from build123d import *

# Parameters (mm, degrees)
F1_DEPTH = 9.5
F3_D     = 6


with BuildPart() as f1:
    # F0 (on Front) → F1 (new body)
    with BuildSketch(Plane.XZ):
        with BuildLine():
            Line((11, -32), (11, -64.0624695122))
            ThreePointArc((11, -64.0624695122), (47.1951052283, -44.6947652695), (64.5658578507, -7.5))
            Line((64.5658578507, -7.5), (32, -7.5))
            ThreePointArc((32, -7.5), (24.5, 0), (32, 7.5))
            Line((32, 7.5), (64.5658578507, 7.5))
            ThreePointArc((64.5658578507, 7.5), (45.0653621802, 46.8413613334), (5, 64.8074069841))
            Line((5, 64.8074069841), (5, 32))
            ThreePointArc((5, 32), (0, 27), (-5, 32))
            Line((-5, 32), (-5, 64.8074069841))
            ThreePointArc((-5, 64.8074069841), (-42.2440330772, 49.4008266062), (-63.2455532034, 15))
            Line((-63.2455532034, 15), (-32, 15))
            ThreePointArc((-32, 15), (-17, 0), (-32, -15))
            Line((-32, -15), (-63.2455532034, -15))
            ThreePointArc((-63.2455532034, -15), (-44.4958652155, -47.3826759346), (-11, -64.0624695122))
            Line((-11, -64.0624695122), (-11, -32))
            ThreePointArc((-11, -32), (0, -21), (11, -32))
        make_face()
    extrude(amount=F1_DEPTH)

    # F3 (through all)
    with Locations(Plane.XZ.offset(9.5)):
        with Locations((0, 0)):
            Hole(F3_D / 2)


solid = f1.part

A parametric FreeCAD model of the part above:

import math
import FreeCAD as App
import Part
import Sketcher
from FreeCAD import Vector

doc = App.newDocument("Part")
params = doc.addObject("Spreadsheet::Sheet", "Params")
for row, (alias, value) in enumerate([
    ("sketch1_radius", "65 mm"),
    ("sketch1_radius2", "5 mm"),
    ("sketch1_radius3", "15 mm"),
    ("sketch1_radius4", "11 mm"),
    ("sketch1_radius5", "7.5 mm"),
    ("pad1_length", "9.5 mm"),
    ("sketch2_diameter", "6 mm"),
    ("hole_diameter", "6 mm"),
], start=1):
    params.set(f"A{row}", alias)
    params.set(f"B{row}", "=" + value)
    params.setAlias(f"B{row}", alias)

body = doc.addObject("PartDesign::Body", "Body")

sketch1 = doc.addObject("Sketcher::SketchObject", "Sketch")
body.addObject(sketch1)
sketch1.AttachmentSupport = (doc.XZ_Plane, [""])
sketch1.MapMode = "FlatFace"
sketch1.addGeometry([
    Part.LineSegment(Vector(11, -32, 0), Vector(11, -64, 0)),
    Part.ArcOfCircle(Part.Circle(Vector(0, 0, 0), Vector(0, 0, 1), 65), math.radians(-80), math.radians(-7)),
    Part.LineSegment(Vector(65, -8, 0), Vector(32, -8, 0)),
    Part.ArcOfCircle(Part.Circle(Vector(32, 0, 0), Vector(0, 0, 1), 8), math.radians(90), math.radians(270)),
    Part.LineSegment(Vector(32, 8, 0), Vector(65, 8, 0)),
    Part.ArcOfCircle(Part.Circle(Vector(0, 0, 0), Vector(0, 0, 1), 65), math.radians(7), math.radians(86)),
    Part.LineSegment(Vector(5, 65, 0), Vector(5, 32, 0)),
    Part.ArcOfCircle(Part.Circle(Vector(0, 32, 0), Vector(0, 0, 1), 5), math.radians(180), math.radians(360)),
    Part.LineSegment(Vector(-5, 32, 0), Vector(-5, 65, 0)),
    Part.ArcOfCircle(Part.Circle(Vector(0, 0, 0), Vector(0, 0, 1), 65), math.radians(94), math.radians(167)),
    Part.LineSegment(Vector(-63, 15, 0), Vector(-32, 15, 0)),
    Part.ArcOfCircle(Part.Circle(Vector(-32, 0, 0), Vector(0, 0, 1), 15), math.radians(-90), math.radians(90)),
    Part.LineSegment(Vector(-32, -15, 0), Vector(-63, -15, 0)),
    Part.ArcOfCircle(Part.Circle(Vector(0, 0, 0), Vector(0, 0, 1), 65), math.radians(-167), math.radians(-100)),
    Part.LineSegment(Vector(-11, -64, 0), Vector(-11, -32, 0)),
    Part.ArcOfCircle(Part.Circle(Vector(0, -32, 0), Vector(0, 0, 1), 11), math.radians(0), math.radians(180)),
], False)
sketch1.addConstraint([
    Sketcher.Constraint("Coincident", 0, 2, 1, 1),
    Sketcher.Constraint("Coincident", 1, 2, 2, 1),
    Sketcher.Constraint("Tangent", 2, 2, 3, 2),
    Sketcher.Constraint("Tangent", 3, 1, 4, 1),
    Sketcher.Constraint("Coincident", 4, 2, 5, 1),
    Sketcher.Constraint("Coincident", 5, 2, 6, 1),
    Sketcher.Constraint("Tangent", 6, 2, 7, 2),
    Sketcher.Constraint("Tangent", 7, 1, 8, 1),
    Sketcher.Constraint("Coincident", 8, 2, 9, 1),
    Sketcher.Constraint("Coincident", 9, 2, 10, 1),
    Sketcher.Constraint("Tangent", 10, 2, 11, 2),
    Sketcher.Constraint("Tangent", 11, 1, 12, 1),
    Sketcher.Constraint("Coincident", 12, 2, 13, 1),
    Sketcher.Constraint("Coincident", 13, 2, 14, 1),
    Sketcher.Constraint("Tangent", 14, 2, 15, 2),
    Sketcher.Constraint("Tangent", 15, 1, 0, 1),
    Sketcher.Constraint("Vertical", 0),
    Sketcher.Constraint("Horizontal", 2),
    Sketcher.Constraint("Horizontal", 4),
    Sketcher.Constraint("Vertical", 6),
    Sketcher.Constraint("Vertical", 8),
    Sketcher.Constraint("Horizontal", 10),
    Sketcher.Constraint("Horizontal", 12),
    Sketcher.Constraint("Vertical", 14),
    Sketcher.Constraint("Coincident", 1, 3, -1, 1),
    Sketcher.Constraint("Coincident", 5, 3, -1, 1),
    Sketcher.Constraint("Coincident", 9, 3, -1, 1),
    Sketcher.Constraint("Coincident", 13, 3, -1, 1),
    Sketcher.Constraint("Equal", 1, 5),
    Sketcher.Constraint("Equal", 5, 9),
    Sketcher.Constraint("Equal", 9, 13),
    Sketcher.Constraint("Symmetric", 3, 3, 11, 3, -1, 1),
    Sketcher.Constraint("Symmetric", 7, 3, 15, 3, -1, 1),
    Sketcher.Constraint("PointOnObject", 3, 3, -1),
    Sketcher.Constraint("PointOnObject", 7, 3, -2),
    Sketcher.Constraint("Radius", 1, 65.0),
    Sketcher.Constraint("Radius", 7, 5.0),
    Sketcher.Constraint("Radius", 11, 15.0),
    Sketcher.Constraint("Radius", 15, 11.0),
    Sketcher.Constraint("Radius", 3, 7.5),
    Sketcher.Constraint("DistanceX", -1, 1, 3, 3, 32.0),
    Sketcher.Constraint("DistanceY", -1, 1, 7, 3, 32.0),
])
sketch1.setExpression("Constraints[35]", "Params.sketch1_radius")
sketch1.setExpression("Constraints[36]", "Params.sketch1_radius2")
sketch1.setExpression("Constraints[37]", "Params.sketch1_radius3")
sketch1.setExpression("Constraints[38]", "Params.sketch1_radius4")
sketch1.setExpression("Constraints[39]", "Params.sketch1_radius5")
pad1 = doc.addObject("PartDesign::Pad", "Pad")
body.addObject(pad1)
pad1.Profile = sketch1
pad1.setExpression("Length", "Params.pad1_length")

sketch2 = doc.addObject("Sketcher::SketchObject", "Sketch001")
body.addObject(sketch2)
sketch2.AttachmentSupport = (doc.XZ_Plane, [""])
sketch2.MapMode = "FlatFace"
sketch2.AttachmentOffset = App.Placement(Vector(0, 0, 9.5), App.Rotation())
sketch2.addGeometry(Part.Circle(Vector(0, 0, 0), Vector(0, 0, 1), 3), False)
sketch2.addConstraint([
    Sketcher.Constraint("Coincident", 0, 3, -1, 1),
    Sketcher.Constraint("Diameter", 0, 6.0),
])
sketch2.setExpression("Constraints[1]", "Params.sketch2_diameter")
doc.recompute()
hole = doc.addObject("PartDesign::Hole", "Hole")
body.addObject(hole)
hole.Profile = sketch2
hole.ThreadType = "None"
hole.setExpression("Diameter", "Params.hole_diameter")
hole.DepthType = "ThroughAll"

doc.recompute()
